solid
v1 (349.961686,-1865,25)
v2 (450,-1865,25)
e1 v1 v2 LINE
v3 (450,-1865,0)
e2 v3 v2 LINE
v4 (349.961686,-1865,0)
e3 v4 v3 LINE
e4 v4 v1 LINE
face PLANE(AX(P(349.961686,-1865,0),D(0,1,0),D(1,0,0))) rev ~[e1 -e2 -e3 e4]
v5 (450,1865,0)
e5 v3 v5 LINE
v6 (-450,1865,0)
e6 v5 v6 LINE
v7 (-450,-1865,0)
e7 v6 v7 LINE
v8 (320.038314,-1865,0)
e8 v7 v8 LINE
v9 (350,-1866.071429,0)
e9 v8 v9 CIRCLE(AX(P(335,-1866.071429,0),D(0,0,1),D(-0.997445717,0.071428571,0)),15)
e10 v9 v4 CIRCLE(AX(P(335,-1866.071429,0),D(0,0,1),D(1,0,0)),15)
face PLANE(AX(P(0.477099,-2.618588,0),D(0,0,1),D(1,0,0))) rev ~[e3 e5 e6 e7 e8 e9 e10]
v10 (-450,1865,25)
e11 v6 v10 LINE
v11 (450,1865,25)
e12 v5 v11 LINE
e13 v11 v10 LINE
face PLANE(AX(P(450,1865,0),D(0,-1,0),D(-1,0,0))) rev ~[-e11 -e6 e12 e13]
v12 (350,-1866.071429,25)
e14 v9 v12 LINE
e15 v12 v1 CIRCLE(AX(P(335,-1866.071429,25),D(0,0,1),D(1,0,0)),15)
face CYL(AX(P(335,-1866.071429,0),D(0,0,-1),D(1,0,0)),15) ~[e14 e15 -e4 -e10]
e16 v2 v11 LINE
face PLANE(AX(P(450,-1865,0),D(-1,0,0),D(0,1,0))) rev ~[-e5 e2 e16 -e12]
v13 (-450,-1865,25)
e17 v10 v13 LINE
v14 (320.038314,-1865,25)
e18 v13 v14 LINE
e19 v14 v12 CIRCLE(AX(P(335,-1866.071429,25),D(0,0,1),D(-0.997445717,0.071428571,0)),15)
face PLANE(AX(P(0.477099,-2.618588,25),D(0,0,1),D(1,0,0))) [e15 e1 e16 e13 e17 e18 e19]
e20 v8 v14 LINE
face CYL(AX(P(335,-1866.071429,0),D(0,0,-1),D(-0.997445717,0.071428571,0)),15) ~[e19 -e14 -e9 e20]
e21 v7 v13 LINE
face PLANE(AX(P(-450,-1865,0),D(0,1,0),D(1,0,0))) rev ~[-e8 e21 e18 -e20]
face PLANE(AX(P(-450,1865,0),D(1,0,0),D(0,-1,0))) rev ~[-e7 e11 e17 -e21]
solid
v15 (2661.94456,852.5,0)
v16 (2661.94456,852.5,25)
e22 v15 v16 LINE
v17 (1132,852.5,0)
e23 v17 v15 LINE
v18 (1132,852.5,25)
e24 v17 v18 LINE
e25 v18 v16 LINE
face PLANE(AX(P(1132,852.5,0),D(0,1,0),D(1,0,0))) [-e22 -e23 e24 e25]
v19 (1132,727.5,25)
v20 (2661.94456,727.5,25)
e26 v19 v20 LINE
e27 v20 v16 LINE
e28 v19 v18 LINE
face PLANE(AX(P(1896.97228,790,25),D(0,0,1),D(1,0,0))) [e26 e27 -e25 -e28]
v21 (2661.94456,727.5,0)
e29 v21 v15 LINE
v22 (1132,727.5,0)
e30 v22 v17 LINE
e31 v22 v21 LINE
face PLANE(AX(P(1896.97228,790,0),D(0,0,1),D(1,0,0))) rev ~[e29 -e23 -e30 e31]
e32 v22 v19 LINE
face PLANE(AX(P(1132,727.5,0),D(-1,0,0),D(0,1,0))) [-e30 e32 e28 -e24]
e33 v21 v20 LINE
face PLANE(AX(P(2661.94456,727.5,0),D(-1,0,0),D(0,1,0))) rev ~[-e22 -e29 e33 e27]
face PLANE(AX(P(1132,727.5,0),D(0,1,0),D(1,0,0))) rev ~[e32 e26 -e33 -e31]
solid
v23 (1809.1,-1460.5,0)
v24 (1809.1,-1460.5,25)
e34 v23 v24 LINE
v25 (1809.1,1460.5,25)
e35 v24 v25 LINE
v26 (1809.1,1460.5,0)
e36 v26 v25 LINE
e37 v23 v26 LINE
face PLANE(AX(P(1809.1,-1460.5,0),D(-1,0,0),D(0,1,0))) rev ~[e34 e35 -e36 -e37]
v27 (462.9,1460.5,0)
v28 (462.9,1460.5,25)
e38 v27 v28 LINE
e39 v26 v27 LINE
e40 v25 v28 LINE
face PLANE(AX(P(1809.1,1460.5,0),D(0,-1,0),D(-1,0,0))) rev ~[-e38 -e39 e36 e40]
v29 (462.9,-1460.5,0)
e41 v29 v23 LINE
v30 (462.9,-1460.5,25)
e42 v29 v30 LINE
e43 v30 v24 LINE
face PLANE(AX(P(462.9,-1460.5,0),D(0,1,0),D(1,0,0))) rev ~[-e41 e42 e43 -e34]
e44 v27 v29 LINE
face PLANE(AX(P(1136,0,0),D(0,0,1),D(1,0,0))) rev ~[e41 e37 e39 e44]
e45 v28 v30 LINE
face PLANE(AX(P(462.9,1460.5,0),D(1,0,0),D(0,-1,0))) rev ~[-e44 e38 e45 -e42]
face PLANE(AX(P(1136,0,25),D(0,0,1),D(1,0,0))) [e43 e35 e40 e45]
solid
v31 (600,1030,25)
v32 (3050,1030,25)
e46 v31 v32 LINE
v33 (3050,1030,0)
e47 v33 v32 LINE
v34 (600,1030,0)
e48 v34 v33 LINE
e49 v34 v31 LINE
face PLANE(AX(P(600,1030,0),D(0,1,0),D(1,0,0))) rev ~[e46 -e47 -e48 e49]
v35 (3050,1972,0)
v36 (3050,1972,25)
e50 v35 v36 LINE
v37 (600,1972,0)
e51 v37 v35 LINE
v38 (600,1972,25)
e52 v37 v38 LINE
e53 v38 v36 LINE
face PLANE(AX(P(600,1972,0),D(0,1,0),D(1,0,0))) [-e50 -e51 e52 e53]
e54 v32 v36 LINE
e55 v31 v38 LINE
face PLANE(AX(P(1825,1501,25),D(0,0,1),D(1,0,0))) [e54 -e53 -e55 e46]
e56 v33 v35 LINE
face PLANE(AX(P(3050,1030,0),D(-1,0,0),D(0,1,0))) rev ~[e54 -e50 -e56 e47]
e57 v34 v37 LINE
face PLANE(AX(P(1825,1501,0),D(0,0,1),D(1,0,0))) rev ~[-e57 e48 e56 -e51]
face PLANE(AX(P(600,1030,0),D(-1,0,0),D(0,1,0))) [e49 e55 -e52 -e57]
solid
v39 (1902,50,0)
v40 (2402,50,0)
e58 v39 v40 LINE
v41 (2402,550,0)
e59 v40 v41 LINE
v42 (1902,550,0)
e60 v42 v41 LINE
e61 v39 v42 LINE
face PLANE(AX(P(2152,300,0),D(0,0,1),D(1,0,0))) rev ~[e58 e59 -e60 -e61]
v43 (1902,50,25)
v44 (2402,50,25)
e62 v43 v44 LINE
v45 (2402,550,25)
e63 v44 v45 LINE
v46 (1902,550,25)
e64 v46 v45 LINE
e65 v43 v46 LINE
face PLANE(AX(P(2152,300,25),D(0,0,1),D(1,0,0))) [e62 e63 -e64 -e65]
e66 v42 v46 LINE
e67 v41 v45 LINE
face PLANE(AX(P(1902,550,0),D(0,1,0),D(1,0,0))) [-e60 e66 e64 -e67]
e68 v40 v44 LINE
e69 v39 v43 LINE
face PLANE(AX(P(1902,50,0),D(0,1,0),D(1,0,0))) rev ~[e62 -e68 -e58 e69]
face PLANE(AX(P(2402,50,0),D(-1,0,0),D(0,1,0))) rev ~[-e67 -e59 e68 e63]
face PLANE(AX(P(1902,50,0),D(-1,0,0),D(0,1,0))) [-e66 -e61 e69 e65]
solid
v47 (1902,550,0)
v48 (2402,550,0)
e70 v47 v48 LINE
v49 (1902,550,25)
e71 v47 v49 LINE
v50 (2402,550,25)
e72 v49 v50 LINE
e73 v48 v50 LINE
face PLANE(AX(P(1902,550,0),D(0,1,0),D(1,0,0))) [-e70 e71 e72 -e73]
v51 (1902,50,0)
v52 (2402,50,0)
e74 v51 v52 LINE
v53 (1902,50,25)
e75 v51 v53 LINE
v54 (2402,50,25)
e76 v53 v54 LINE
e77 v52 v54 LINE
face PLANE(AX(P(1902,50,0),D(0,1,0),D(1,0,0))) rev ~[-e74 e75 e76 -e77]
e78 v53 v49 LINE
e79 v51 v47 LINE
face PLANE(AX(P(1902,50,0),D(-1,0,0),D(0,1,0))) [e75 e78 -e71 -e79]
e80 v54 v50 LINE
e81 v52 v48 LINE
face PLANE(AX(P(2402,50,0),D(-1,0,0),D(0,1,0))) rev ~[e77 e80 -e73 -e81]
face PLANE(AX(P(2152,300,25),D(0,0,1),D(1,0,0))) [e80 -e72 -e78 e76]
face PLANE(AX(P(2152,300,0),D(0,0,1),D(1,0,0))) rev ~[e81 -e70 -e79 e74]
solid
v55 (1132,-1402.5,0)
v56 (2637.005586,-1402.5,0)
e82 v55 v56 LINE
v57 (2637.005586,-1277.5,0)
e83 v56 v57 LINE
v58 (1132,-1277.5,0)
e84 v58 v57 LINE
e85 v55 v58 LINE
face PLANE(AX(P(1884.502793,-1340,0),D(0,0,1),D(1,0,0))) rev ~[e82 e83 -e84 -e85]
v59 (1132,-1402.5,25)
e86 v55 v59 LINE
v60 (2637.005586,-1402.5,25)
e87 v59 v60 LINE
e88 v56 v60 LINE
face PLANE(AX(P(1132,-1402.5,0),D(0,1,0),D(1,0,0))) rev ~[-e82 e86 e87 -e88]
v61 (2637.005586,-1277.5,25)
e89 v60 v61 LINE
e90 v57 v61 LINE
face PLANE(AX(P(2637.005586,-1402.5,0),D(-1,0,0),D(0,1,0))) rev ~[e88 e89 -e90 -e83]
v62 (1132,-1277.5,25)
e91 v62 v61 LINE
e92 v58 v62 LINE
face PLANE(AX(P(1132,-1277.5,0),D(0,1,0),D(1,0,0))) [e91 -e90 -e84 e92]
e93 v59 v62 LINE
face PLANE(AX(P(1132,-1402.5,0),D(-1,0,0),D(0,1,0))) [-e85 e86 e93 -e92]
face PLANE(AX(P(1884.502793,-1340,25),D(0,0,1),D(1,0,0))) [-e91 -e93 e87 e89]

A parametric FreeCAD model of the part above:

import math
import FreeCAD as App
import Part
import Sketcher

V = App.Vector

doc = App.newDocument("Part")
body = doc.addObject("PartDesign::Body", "Body")

sketch1 = doc.addObject("Sketcher::SketchObject", "Sketch")
body.addObject(sketch1)
sketch1.AttachmentSupport = (doc.XY_Plane, [""])
sketch1.MapMode = "FlatFace"
sketch1.addGeometry(Part.LineSegment(V(463, 1460, 0), V(463, -1460, 0)), False)
sketch1.addGeometry(Part.LineSegment(V(463, -1460, 0), V(1809, -1460, 0)), False)
sketch1.addGeometry(Part.LineSegment(V(1809, -1460, 0), V(1809, 1460, 0)), False)
sketch1.addGeometry(Part.LineSegment(V(1809, 1460, 0), V(463, 1460, 0)), False)
sketch1.addConstraint(Sketcher.Constraint("Coincident", 0, 2, 1, 1))
sketch1.addConstraint(Sketcher.Constraint("Coincident", 1, 2, 2, 1))
sketch1.addConstraint(Sketcher.Constraint("Coincident", 2, 2, 3, 1))
sketch1.addConstraint(Sketcher.Constraint("Coincident", 3, 2, 0, 1))
sketch1.addConstraint(Sketcher.Constraint("Vertical", 0))
sketch1.addConstraint(Sketcher.Constraint("Horizontal", 1))
sketch1.addConstraint(Sketcher.Constraint("Vertical", 2))
sketch1.addConstraint(Sketcher.Constraint("Horizontal", 3))
sketch1.addConstraint(Sketcher.Constraint("DistanceY", 0, 2, 0, 1, 2921.0))
sketch1.addConstraint(Sketcher.Constraint("DistanceX", 1, 1, 1, 2, 1346.2))
sketch1.addConstraint(Sketcher.Constraint("DistanceX", -1, 1, 0, 2, 462.9))
sketch1.addConstraint(Sketcher.Constraint("DistanceY", 0, 2, -1, 1, 1460.5))
pad1 = doc.addObject("PartDesign::Pad", "Pad")
body.addObject(pad1)
pad1.Profile = sketch1
pad1.Length = 25
body2 = doc.addObject("PartDesign::Body", "Body001")

sketch2 = doc.addObject("Sketcher::SketchObject", "Sketch001")
body2.addObject(sketch2)
sketch2.AttachmentSupport = (doc.getObject("XY_Plane001"), [""])
sketch2.MapMode = "FlatFace"
sketch2.addGeometry(Part.LineSegment(V(1902, 550, 0), V(1902, 50, 0)), False)
sketch2.addGeometry(Part.LineSegment(V(1902, 50, 0), V(2402, 50, 0)), False)
sketch2.addGeometry(Part.LineSegment(V(2402, 50, 0), V(2402, 550, 0)), False)
sketch2.addGeometry(Part.LineSegment(V(2402, 550, 0), V(1902, 550, 0)), False)
sketch2.addConstraint(Sketcher.Constraint("Coincident", 0, 2, 1, 1))
sketch2.addConstraint(Sketcher.Constraint("Coincident", 1, 2, 2, 1))
sketch2.addConstraint(Sketcher.Constraint("Coincident", 2, 2, 3, 1))
sketch2.addConstraint(Sketcher.Constraint("Coincident", 3, 2, 0, 1))
sketch2.addConstraint(Sketcher.Constraint("Vertical", 0))
sketch2.addConstraint(Sketcher.Constraint("Horizontal", 1))
sketch2.addConstraint(Sketcher.Constraint("Vertical", 2))
sketch2.addConstraint(Sketcher.Constraint("Horizontal", 3))
sketch2.addConstraint(Sketcher.Constraint("Equal", 3, 0))
sketch2.addConstraint(Sketcher.Constraint("DistanceX", 1, 1, 1, 2, 500.0))
sketch2.addConstraint(Sketcher.Constraint("DistanceX", -1, 1, 0, 2, 1902.0))
sketch2.addConstraint(Sketcher.Constraint("DistanceY", -1, 1, 0, 2, 50.0))
pad2 = doc.addObject("PartDesign::Pad", "Pad001")
body2.addObject(pad2)
pad2.Profile = sketch2
pad2.Length = 25
body3 = doc.addObject("PartDesign::Body", "Body002")

sketch3 = doc.addObject("Sketcher::SketchObject", "Sketch002")
body3.addObject(sketch3)
sketch3.AttachmentSupport = (doc.getObject("XY_Plane002"), [""])
sketch3.MapMode = "FlatFace"
sketch3.addGeometry(Part.LineSegment(V(600, 1972, 0), V(600, 1030, 0)), False)
sketch3.addGeometry(Part.LineSegment(V(600, 1030, 0), V(3050, 1030, 0)), False)
sketch3.addGeometry(Part.LineSegment(V(3050, 1030, 0), V(3050, 1972, 0)), False)
sketch3.addGeometry(Part.LineSegment(V(3050, 1972, 0), V(600, 1972, 0)), False)
sketch3.addConstraint(Sketcher.Constraint("Coincident", 0, 2, 1, 1))
sketch3.addConstraint(Sketcher.Constraint("Coincident", 1, 2, 2, 1))
sketch3.addConstraint(Sketcher.Constraint("Coincident", 2, 2, 3, 1))
sketch3.addConstraint(Sketcher.Constraint("Coincident", 3, 2, 0, 1))
sketch3.addConstraint(Sketcher.Constraint("Vertical", 0))
sketch3.addConstraint(Sketcher.Constraint("Horizontal", 1))
sketch3.addConstraint(Sketcher.Constraint("Vertical", 2))
sketch3.addConstraint(Sketcher.Constraint("Horizontal", 3))
sketch3.addConstraint(Sketcher.Constraint("DistanceX", 1, 1, 1, 2, 2450.0))
sketch3.addConstraint(Sketcher.Constraint("DistanceY", 0, 2, 0, 1, 942.0))
sketch3.addConstraint(Sketcher.Constraint("DistanceX", -1, 1, 0, 2, 600.0))
sketch3.addConstraint(Sketcher.Constraint("DistanceY", -1, 1, 0, 2, 1030.0))
pad3 = doc.addObject("PartDesign::Pad", "Pad002")
body3.addObject(pad3)
pad3.Profile = sketch3
pad3.Length = 25
body4 = doc.addObject("PartDesign::Body", "Body003")

sketch4 = doc.addObject("Sketcher::SketchObject", "Sketch003")
body4.addObject(sketch4)
sketch4.AttachmentSupport = (doc.getObject("XY_Plane003"), [""])
sketch4.MapMode = "FlatFace"
sketch4.addGeometry(Part.LineSegment(V(350, -1865, 0), V(450, -1865, 0)), False)
sketch4.addGeometry(Part.LineSegment(V(450, -1865, 0), V(450, 1865, 0)), False)
sketch4.addGeometry(Part.LineSegment(V(450, 1865, 0), V(-450, 1865, 0)), False)
sketch4.addGeometry(Part.LineSegment(V(-450, 1865, 0), V(-450, -1865, 0)), False)
sketch4.addGeometry(Part.LineSegment(V(-450, -1865, 0), V(320, -1865, 0)), False)
sketch4.addGeometry(Part.ArcOfCircle(Part.Circle(V(335, -1866.1, 0), V(0, 0, 1), 15), math.radians(176), math.radians(360)), False)
sketch4.addGeometry(Part.ArcOfCircle(Part.Circle(V(335, -1866.1, 0), V(0, 0, 1), 15), math.radians(0), math.radians(4.1)), False)
sketch4.addConstraint(Sketcher.Constraint("Coincident", 0, 2, 1, 1))
sketch4.addConstraint(Sketcher.Constraint("Coincident", 1, 2, 2, 1))
sketch4.addConstraint(Sketcher.Constraint("Coincident", 2, 2, 3, 1))
sketch4.addConstraint(Sketcher.Constraint("Coincident", 3, 2, 4, 1))
sketch4.addConstraint(Sketcher.Constraint("Coincident", 4, 2, 5, 1))
sketch4.addConstraint(Sketcher.Constraint("Tangent", 5, 2, 6, 1))
sketch4.addConstraint(Sketcher.Constraint("Coincident", 6, 2, 0, 1))
sketch4.addConstraint(Sketcher.Constraint("Horizontal", 0))
sketch4.addConstraint(Sketcher.Constraint("Vertical", 1))
sketch4.addConstraint(Sketcher.Constraint("Horizontal", 2))
sketch4.addConstraint(Sketcher.Constraint("Vertical", 3))
sketch4.addConstraint(Sketcher.Constraint("Horizontal", 4))
sketch4.addConstraint(Sketcher.Constraint("Equal", 5, 6))
sketch4.addConstraint(Sketcher.Constraint("Symmetric", 0, 2, 2, 2, -1, 1))
sketch4.addConstraint(Sketcher.Constraint("Horizontal", 0, 2, 3, 2))
sketch4.addConstraint(Sketcher.Constraint("Horizontal", 6, 3, 5, 2))
sketch4.addConstraint(Sketcher.Constraint("Radius", 5, 15.0))
sketch4.addConstraint(Sketcher.Constraint("DistanceX", 2, 2, 2, 1, 900.0))
sketch4.addConstraint(Sketcher.Constraint("DistanceY", 1, 1, 1, 2, 3730.0))
sketch4.addConstraint(Sketcher.Constraint("DistanceX", -1, 1, 5, 3, 335.0))
sketch4.addConstraint(Sketcher.Constraint("DistanceX", 0, 1, 0, 2, 100.038314))
pad4 = doc.addObject("PartDesign::Pad", "Pad003")
body4.addObject(pad4)
pad4.Profile = sketch4
pad4.Length = 25
body5 = doc.addObject("PartDesign::Body", "Body004")

sketch5 = doc.addObject("Sketcher::SketchObject", "Sketch004")
body5.addObject(sketch5)
sketch5.AttachmentSupport = (doc.getObject("XY_Plane004"), [""])
sketch5.MapMode = "FlatFace"
sketch5.addGeometry(Part.LineSegment(V(1132, -1278, 0), V(1132, -1402, 0)), False)
sketch5.addGeometry(Part.LineSegment(V(1132, -1402, 0), V(2637, -1402, 0)), False)
sketch5.addGeometry(Part.LineSegment(V(2637, -1402, 0), V(2637, -1278, 0)), False)
sketch5.addGeometry(Part.LineSegment(V(2637, -1278, 0), V(1132, -1278, 0)), False)
sketch5.addConstraint(Sketcher.Constraint("Coincident", 0, 2, 1, 1))
sketch5.addConstraint(Sketcher.Constraint("Coincident", 1, 2, 2, 1))
sketch5.addConstraint(Sketcher.Constraint("Coincident", 2, 2, 3, 1))
sketch5.addConstraint(Sketcher.Constraint("Coincident", 3, 2, 0, 1))
sketch5.addConstraint(Sketcher.Constraint("Vertical", 0))
sketch5.addConstraint(Sketcher.Constraint("Horizontal", 1))
sketch5.addConstraint(Sketcher.Constraint("Vertical", 2))
sketch5.addConstraint(Sketcher.Constraint("Horizontal", 3))
sketch5.addConstraint(Sketcher.Constraint("DistanceY", 0, 2, 0, 1, 125.0))
sketch5.addConstraint(Sketcher.Constraint("DistanceX", -1, 1, 0, 2, 1132.0))
sketch5.addConstraint(Sketcher.Constraint("DistanceY", 0, 2, -1, 1, 1402.5))
sketch5.addConstraint(Sketcher.Constraint("DistanceX", 1, 1, 1, 2, 1505.005586))
pad5 = doc.addObject("PartDesign::Pad", "Pad004")
body5.addObject(pad5)
pad5.Profile = sketch5
pad5.Length = 25
body6 = doc.addObject("PartDesign::Body", "Body005")

sketch6 = doc.addObject("Sketcher::SketchObject", "Sketch005")
body6.addObject(sketch6)
sketch6.AttachmentSupport = (doc.getObject("XY_Plane005"), [""])
sketch6.MapMode = "FlatFace"
sketch6.addGeometry(Part.LineSegment(V(1132, 852, 0), V(1132, 728, 0)), False)
sketch6.addGeometry(Part.LineSegment(V(1132, 728, 0), V(2662, 728, 0)), False)
sketch6.addGeometry(Part.LineSegment(V(2662, 728, 0), V(2662, 852, 0)), False)
sketch6.addGeometry(Part.LineSegment(V(2662, 852, 0), V(1132, 852, 0)), False)
sketch6.addConstraint(Sketcher.Constraint("Coincident", 0, 2, 1, 1))
sketch6.addConstraint(Sketcher.Constraint("Coincident", 1, 2, 2, 1))
sketch6.addConstraint(Sketcher.Constraint("Coincident", 2, 2, 3, 1))
sketch6.addConstraint(Sketcher.Constraint("Coincident", 3, 2, 0, 1))
sketch6.addConstraint(Sketcher.Constraint("Vertical", 0))
sketch6.addConstraint(Sketcher.Constraint("Horizontal", 1))
sketch6.addConstraint(Sketcher.Constraint("Vertical", 2))
sketch6.addConstraint(Sketcher.Constraint("Horizontal", 3))
sketch6.addConstraint(Sketcher.Constraint("DistanceY", 0, 2, 0, 1, 125.0))
sketch6.addConstraint(Sketcher.Constraint("DistanceX", -1, 1, 0, 2, 1132.0))
sketch6.addConstraint(Sketcher.Constraint("DistanceY", -1, 1, 0, 2, 727.5))
sketch6.addConstraint(Sketcher.Constraint("DistanceX", 1, 1, 1, 2, 1529.94456))
pad6 = doc.addObject("PartDesign::Pad", "Pad005")
body6.addObject(pad6)
pad6.Profile = sketch6
pad6.Length = 25
body7 = doc.addObject("PartDesign::Body", "Body006")

sketch7 = doc.addObject("Sketcher::SketchObject", "Sketch006")
body7.addObject(sketch7)
sketch7.AttachmentSupport = (doc.getObject("XY_Plane006"), [""])
sketch7.MapMode = "FlatFace"
sketch7.addGeometry(Part.LineSegment(V(1902, 550, 0), V(1902, 50, 0)), False)
sketch7.addGeometry(Part.LineSegment(V(1902, 50, 0), V(2402, 50, 0)), False)
sketch7.addGeometry(Part.LineSegment(V(2402, 50, 0), V(2402, 550, 0)), False)
sketch7.addGeometry(Part.LineSegment(V(2402, 550, 0), V(1902, 550, 0)), False)
sketch7.addConstraint(Sketcher.Constraint("Coincident", 0, 2, 1, 1))
sketch7.addConstraint(Sketcher.Constraint("Coincident", 1, 2, 2, 1))
sketch7.addConstraint(Sketcher.Constraint("Coincident", 2, 2, 3, 1))
sketch7.addConstraint(Sketcher.Constraint("Coincident", 3, 2, 0, 1))
sketch7.addConstraint(Sketcher.Constraint("Vertical", 0))
sketch7.addConstraint(Sketcher.Constraint("Horizontal", 1))
sketch7.addConstraint(Sketcher.Constraint("Vertical", 2))
sketch7.addConstraint(Sketcher.Constraint("Horizontal", 3))
sketch7.addConstraint(Sketcher.Constraint("Equal", 3, 0))
sketch7.addConstraint(Sketcher.Constraint("DistanceX", 1, 1, 1, 2, 500.0))
sketch7.addConstraint(Sketcher.Constraint("DistanceX", -1, 1, 0, 2, 1902.0))
sketch7.addConstraint(Sketcher.Constraint("DistanceY", -1, 1, 0, 2, 50.0))
pad7 = doc.addObject("PartDesign::Pad", "Pad006")
body7.addObject(pad7)
pad7.Profile = sketch7
pad7.Length = 25

doc.recompute()
